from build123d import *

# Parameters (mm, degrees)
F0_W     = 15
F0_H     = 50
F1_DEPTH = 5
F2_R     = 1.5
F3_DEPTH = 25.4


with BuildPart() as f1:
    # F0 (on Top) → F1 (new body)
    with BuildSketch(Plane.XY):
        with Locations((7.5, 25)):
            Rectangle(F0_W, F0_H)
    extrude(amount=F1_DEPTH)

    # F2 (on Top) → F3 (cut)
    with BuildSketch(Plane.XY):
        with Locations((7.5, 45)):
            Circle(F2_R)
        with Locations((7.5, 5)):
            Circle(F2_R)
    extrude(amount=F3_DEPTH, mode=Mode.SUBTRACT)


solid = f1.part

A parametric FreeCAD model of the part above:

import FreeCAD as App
import Part
import Sketcher

V = App.Vector

doc = App.newDocument("Part")
body = doc.addObject("PartDesign::Body", "Body")

sketch1 = body.newObject("Sketcher::SketchObject", "Sketch")
sketch1.AttachmentSupport = (doc.getObject("XY_Plane"), [""])
sketch1.MapMode = "FlatFace"
sketch1.addGeometry([
    Part.LineSegment(V(0, 50, 0), V(0, 0, 0)),
    Part.LineSegment(V(0, 0, 0), V(15, 0, 0)),
    Part.LineSegment(V(15, 0, 0), V(15, 50, 0)),
    Part.LineSegment(V(15, 50, 0), V(0, 50, 0)),
], False)
sketch1.addConstraint([
    Sketcher.Constraint("Coincident", 0, 2, 1, 1),
    Sketcher.Constraint("Coincident", 1, 2, 2, 1),
    Sketcher.Constraint("Coincident", 2, 2, 3, 1),
    Sketcher.Constraint("Coincident", 3, 2, 0, 1),
    Sketcher.Constraint("Vertical", 0),
    Sketcher.Constraint("Horizontal", 1),
    Sketcher.Constraint("Vertical", 2),
    Sketcher.Constraint("Horizontal", 3),
    Sketcher.Constraint("Coincident", 0, 2, -1, 1),
    Sketcher.Constraint("DistanceX", 1, 1, 1, 2, 15.0),
    Sketcher.Constraint("DistanceY", 0, 2, 0, 1, 50.0),
])
pad1 = body.newObject("PartDesign::Pad", "Pad")
pad1.Profile = sketch1
pad1.Length = 5

sketch2 = body.newObject("Sketcher::SketchObject", "Sketch001")
sketch2.AttachmentSupport = (doc.getObject("XY_Plane"), [""])
sketch2.MapMode = "FlatFace"
sketch2.addGeometry([
    Part.Circle(V(7.5, 45, 0), V(0, 0, 1), 1.5),
    Part.Circle(V(7.5, 5, 0), V(0, 0, 1), 1.5),
], False)
sketch2.addConstraint([
    Sketcher.Constraint("Equal", 0, 1),
    Sketcher.Constraint("Vertical", 0, 3, 1, 3),
    Sketcher.Constraint("Diameter", 0, 3.0),
    Sketcher.Constraint("DistanceY", -1, 1, 0, 3, 45.0),
    Sketcher.Constraint("DistanceY", -1, 1, 1, 3, 5.0),
    Sketcher.Constraint("DistanceX", -1, 1, 0, 3, 7.5),
])
pocket1 = body.newObject("PartDesign::Pocket", "Pocket")
pocket1.Profile = sketch2
pocket1.Length = 25.4
pocket1.Reversed = True

doc.recompute()
